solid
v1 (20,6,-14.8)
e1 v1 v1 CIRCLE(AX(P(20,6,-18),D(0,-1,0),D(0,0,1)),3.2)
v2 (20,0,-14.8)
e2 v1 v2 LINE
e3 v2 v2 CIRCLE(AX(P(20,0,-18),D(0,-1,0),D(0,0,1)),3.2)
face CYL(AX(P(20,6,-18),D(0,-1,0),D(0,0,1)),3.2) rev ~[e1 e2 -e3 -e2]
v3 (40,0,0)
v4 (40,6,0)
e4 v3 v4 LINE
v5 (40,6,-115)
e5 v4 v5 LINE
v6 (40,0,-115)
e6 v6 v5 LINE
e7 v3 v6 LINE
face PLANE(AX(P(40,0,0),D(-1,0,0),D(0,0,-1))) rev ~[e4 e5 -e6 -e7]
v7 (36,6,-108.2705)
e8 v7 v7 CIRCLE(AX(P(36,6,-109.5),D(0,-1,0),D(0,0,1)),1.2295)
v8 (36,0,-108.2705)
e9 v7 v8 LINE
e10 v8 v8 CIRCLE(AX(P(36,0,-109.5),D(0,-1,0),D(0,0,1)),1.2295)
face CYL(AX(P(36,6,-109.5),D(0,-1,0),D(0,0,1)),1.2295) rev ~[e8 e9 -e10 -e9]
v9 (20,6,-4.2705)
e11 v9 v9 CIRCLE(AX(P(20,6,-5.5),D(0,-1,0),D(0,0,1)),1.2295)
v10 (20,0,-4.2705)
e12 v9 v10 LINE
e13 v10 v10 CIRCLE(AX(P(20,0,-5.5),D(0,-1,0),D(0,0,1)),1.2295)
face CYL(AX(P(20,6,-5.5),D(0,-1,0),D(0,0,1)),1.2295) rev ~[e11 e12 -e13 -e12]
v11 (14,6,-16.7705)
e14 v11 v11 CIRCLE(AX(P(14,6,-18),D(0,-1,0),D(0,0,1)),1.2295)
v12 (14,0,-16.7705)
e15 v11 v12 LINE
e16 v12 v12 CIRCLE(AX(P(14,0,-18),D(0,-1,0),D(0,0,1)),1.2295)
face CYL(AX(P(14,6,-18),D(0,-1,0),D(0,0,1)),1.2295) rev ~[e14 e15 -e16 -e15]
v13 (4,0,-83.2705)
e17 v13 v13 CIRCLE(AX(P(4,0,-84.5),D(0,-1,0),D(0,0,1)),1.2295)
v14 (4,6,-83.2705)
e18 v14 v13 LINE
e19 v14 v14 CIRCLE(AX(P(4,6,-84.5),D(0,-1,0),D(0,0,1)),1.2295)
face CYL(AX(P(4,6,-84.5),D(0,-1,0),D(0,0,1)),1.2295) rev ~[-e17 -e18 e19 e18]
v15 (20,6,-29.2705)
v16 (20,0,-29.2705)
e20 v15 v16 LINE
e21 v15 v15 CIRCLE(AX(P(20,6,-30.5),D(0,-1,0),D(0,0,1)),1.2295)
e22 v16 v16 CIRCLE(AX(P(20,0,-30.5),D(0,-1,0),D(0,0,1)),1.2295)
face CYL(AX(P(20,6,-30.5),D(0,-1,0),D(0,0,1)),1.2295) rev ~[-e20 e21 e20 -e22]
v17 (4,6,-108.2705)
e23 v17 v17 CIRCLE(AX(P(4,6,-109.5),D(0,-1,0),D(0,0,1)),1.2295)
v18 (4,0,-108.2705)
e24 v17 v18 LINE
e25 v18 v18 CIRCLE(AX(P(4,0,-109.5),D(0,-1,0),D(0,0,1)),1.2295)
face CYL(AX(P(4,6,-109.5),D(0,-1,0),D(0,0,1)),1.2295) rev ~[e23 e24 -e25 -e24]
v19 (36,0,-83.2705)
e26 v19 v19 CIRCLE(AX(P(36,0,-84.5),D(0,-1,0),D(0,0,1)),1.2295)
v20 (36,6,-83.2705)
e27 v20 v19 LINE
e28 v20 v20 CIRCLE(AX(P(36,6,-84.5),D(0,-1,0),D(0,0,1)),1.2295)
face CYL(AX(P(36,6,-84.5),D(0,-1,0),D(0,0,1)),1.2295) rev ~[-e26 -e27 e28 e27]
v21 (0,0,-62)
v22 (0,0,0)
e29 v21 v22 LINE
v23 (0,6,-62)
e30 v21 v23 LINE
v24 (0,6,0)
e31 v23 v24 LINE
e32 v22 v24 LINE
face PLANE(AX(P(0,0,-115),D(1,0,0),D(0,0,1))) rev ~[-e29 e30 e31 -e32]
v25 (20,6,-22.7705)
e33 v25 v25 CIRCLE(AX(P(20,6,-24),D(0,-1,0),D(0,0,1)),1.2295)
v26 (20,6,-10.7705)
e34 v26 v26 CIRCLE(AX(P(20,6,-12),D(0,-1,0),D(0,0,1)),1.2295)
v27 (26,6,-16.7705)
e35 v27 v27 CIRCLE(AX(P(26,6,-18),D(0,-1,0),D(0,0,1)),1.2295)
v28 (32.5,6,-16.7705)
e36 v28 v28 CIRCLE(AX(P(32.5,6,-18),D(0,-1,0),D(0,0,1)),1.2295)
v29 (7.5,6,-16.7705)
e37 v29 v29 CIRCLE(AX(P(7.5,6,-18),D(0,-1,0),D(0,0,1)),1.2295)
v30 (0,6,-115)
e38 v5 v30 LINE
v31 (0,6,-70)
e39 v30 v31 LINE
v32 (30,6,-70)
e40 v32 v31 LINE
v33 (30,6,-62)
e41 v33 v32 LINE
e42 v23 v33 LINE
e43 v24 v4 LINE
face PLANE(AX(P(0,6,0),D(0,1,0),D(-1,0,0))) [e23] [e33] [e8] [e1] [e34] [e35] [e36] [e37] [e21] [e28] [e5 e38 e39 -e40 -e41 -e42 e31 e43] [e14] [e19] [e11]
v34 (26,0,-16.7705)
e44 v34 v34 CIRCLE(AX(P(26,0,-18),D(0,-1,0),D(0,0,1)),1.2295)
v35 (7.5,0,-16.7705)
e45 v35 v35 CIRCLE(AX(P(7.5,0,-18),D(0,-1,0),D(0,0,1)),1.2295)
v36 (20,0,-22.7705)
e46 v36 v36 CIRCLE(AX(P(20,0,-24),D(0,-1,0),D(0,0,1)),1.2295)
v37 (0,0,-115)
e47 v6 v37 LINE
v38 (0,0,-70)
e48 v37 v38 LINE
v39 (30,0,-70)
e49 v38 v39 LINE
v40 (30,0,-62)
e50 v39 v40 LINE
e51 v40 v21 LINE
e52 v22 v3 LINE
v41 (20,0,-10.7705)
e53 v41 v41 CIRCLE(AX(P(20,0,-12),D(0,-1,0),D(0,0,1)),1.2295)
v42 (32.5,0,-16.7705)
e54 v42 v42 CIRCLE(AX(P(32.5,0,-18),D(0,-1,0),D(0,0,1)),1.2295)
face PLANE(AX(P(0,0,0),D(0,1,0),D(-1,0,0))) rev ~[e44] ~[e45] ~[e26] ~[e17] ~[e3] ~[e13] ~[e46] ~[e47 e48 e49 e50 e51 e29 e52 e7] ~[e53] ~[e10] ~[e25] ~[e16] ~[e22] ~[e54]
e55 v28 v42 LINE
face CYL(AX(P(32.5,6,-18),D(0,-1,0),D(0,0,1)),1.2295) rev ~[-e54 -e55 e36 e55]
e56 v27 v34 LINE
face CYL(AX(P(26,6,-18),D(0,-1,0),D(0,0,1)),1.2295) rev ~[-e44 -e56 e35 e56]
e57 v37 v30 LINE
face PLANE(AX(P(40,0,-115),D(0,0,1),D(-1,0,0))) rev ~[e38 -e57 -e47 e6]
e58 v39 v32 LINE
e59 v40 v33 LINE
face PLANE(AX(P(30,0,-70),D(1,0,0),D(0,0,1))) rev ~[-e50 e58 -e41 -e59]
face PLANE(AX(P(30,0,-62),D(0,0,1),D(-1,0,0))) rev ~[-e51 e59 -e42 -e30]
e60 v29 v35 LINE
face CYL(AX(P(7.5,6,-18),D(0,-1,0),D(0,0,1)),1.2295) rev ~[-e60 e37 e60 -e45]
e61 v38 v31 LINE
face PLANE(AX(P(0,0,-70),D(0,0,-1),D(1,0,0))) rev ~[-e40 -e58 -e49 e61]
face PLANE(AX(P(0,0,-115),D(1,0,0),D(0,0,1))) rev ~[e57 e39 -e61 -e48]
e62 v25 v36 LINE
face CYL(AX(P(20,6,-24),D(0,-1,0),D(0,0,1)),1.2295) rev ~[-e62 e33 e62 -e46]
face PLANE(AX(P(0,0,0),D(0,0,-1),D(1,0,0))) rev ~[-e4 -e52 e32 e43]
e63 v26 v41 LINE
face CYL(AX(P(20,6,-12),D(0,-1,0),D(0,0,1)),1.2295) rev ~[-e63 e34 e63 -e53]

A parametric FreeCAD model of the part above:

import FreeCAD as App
import Part
import Sketcher

V = App.Vector
Q = App.Units.Quantity


def add_polygon(sketch, points):
    """Adds a closed chain of lines whose ends are joined by coincident constraints."""
    first, n = sketch.GeometryCount, len(points)
    for a, b in zip(points, points[1:] + points[:1]):
        sketch.addGeometry(Part.LineSegment(App.Vector(*a, 0), App.Vector(*b, 0)), False)
    for i in range(n):
        sketch.addConstraint(Sketcher.Constraint("Coincident", first + i, 2, first + (i + 1) % n, 1))

doc = App.newDocument("Part")
body = doc.addObject("PartDesign::Body", "Body")

# Sketch on XZ plane
sketch1 = body.newObject("Sketcher::SketchObject", "Sketch")
sketch1.AttachmentSupport = (doc.getObject("XZ_Plane"), [""])
sketch1.MapMode = "FlatFace"
add_polygon(sketch1, [(0, -115), (0, 0), (40, 0), (40, -115)])  # lines 0-3
sketch1.addConstraint(Sketcher.Constraint("Vertical", 0))
sketch1.addConstraint(Sketcher.Constraint("Horizontal", 1))
sketch1.addConstraint(Sketcher.Constraint("Vertical", 2))
sketch1.addConstraint(Sketcher.Constraint("Horizontal", 3))
sketch1.addConstraint(Sketcher.Constraint("Coincident", 0, 2, -1, 1))
sketch1.addConstraint(Sketcher.Constraint("DistanceX", 1, 1, 1, 2, Q("40 mm")))
sketch1.addConstraint(Sketcher.Constraint("DistanceY", 0, 1, 0, 2, Q("115 mm")))
pad1 = body.newObject("PartDesign::Pad", "Pad")
pad1.Profile = sketch1
pad1.Length = 6
pad1.Reversed = True

# Sketch on XZ plane
sketch2 = body.newObject("Sketcher::SketchObject", "Sketch001")
sketch2.AttachmentSupport = (doc.getObject("XZ_Plane"), [""])
sketch2.MapMode = "FlatFace"
sketch2.AttachmentOffset = App.Placement(V(0, 0, -6), App.Rotation())
sketch2.addGeometry(Part.Circle(V(20, -18, 0), V(0, 0, 1), 3.2), False)
sketch2.addConstraint(Sketcher.Constraint("Diameter", 0, Q("6.4 mm")))
sketch2.addConstraint(Sketcher.Constraint("DistanceX", -1, 1, 0, 3, Q("20 mm")))
sketch2.addConstraint(Sketcher.Constraint("DistanceY", 0, 3, -1, 1, Q("18 mm")))
doc.recompute()
hole = body.newObject("PartDesign::Hole", "Hole")
hole.Profile = sketch2
hole.ThreadType = "None"
hole.Diameter = 6.4
hole.DepthType = "ThroughAll"
hole.Reversed = True

# Sketch on XZ plane
sketch3 = body.newObject("Sketcher::SketchObject", "Sketch002")
sketch3.AttachmentSupport = (doc.getObject("XZ_Plane"), [""])
sketch3.MapMode = "FlatFace"
sketch3.AttachmentOffset = App.Placement(V(0, 0, -6), App.Rotation())
sketch3.addGeometry(Part.Circle(V(7.5, -18, 0), V(0, 0, 1), 1.2), False)
sketch3.addGeometry(Part.Circle(V(20, -5.5, 0), V(0, 0, 1), 1.2), False)
sketch3.addGeometry(Part.Circle(V(32.5, -18, 0), V(0, 0, 1), 1.2), False)
sketch3.addGeometry(Part.Circle(V(20, -30.5, 0), V(0, 0, 1), 1.2), False)
sketch3.addConstraint(Sketcher.Constraint("Equal", 0, 1))
sketch3.addConstraint(Sketcher.Constraint("Equal", 1, 2))
sketch3.addConstraint(Sketcher.Constraint("Equal", 2, 3))
sketch3.addConstraint(Sketcher.Constraint("Horizontal", 0, 3, 2, 3))
sketch3.addConstraint(Sketcher.Constraint("Vertical", 1, 3, 3, 3))
sketch3.addConstraint(Sketcher.Constraint("Diameter", 0, Q("2.459 mm")))
sketch3.addConstraint(Sketcher.Constraint("DistanceY", 0, 3, -1, 1, Q("18 mm")))
sketch3.addConstraint(Sketcher.Constraint("DistanceX", -1, 1, 1, 3, Q("20 mm")))
sketch3.addConstraint(Sketcher.Constraint("DistanceX", 0, 3, 2, 3, Q("25 mm")))
sketch3.addConstraint(Sketcher.Constraint("DistanceY", 3, 3, 1, 3, Q("25 mm")))
sketch3.addConstraint(Sketcher.Constraint("DistanceX", -1, 1, 0, 3, Q("7.5 mm")))
sketch3.addConstraint(Sketcher.Constraint("DistanceY", 1, 3, -1, 1, Q("5.5 mm")))
doc.recompute()
hole2 = body.newObject("PartDesign::Hole", "Hole001")
hole2.Profile = sketch3
hole2.ThreadType = "None"
hole2.Diameter = 2.459
hole2.DepthType = "ThroughAll"
hole2.Reversed = True

# Sketch on XZ plane
sketch4 = body.newObject("Sketcher::SketchObject", "Sketch003")
sketch4.AttachmentSupport = (doc.getObject("XZ_Plane"), [""])
sketch4.MapMode = "FlatFace"
add_polygon(sketch4, [(30, -70), (30, -62), (0, -62), (0, -70)])  # lines 0-3
sketch4.addConstraint(Sketcher.Constraint("Vertical", 0))
sketch4.addConstraint(Sketcher.Constraint("Horizontal", 1))
sketch4.addConstraint(Sketcher.Constraint("Vertical", 2))
sketch4.addConstraint(Sketcher.Constraint("Horizontal", 3))
sketch4.addConstraint(Sketcher.Constraint("PointOnObject", 1, 2, -2))
sketch4.addConstraint(Sketcher.Constraint("DistanceX", 1, 2, 1, 1, Q("30 mm")))
sketch4.addConstraint(Sketcher.Constraint("DistanceY", 0, 1, 0, 2, Q("8 mm")))
sketch4.addConstraint(Sketcher.Constraint("DistanceY", 0, 2, -1, 1, Q("62 mm")))
pocket1 = body.newObject("PartDesign::Pocket", "Pocket")
pocket1.Profile = sketch4
pocket1.Length = 10

# Sketch on XZ plane
sketch5 = body.newObject("Sketcher::SketchObject", "Sketch004")
sketch5.AttachmentSupport = (doc.getObject("XZ_Plane"), [""])
sketch5.MapMode = "FlatFace"
sketch5.AttachmentOffset = App.Placement(V(0, 0, -6), App.Rotation())
sketch5.addGeometry(Part.Circle(V(36, -84.5, 0), V(0, 0, 1), 1.2), False)
sketch5.addGeometry(Part.Circle(V(36, -109.5, 0), V(0, 0, 1), 1.2), False)
sketch5.addGeometry(Part.Circle(V(4, -109.5, 0), V(0, 0, 1), 1.2), False)
sketch5.addGeometry(Part.Circle(V(4, -84.5, 0), V(0, 0, 1), 1.2), False)
sketch5.addConstraint(Sketcher.Constraint("Equal", 0, 1))
sketch5.addConstraint(Sketcher.Constraint("Equal", 1, 2))
sketch5.addConstraint(Sketcher.Constraint("Equal", 2, 3))
sketch5.addConstraint(Sketcher.Constraint("Horizontal", 1, 3, 2, 3))
sketch5.addConstraint(Sketcher.Constraint("Horizontal", 0, 3, 3, 3))
sketch5.addConstraint(Sketcher.Constraint("Vertical", 0, 3, 1, 3))
sketch5.addConstraint(Sketcher.Constraint("Vertical", 2, 3, 3, 3))
sketch5.addConstraint(Sketcher.Constraint("Diameter", 0, Q("2.459 mm")))
sketch5.addConstraint(Sketcher.Constraint("DistanceX", -1, 1, 0, 3, Q("36 mm")))
sketch5.addConstraint(Sketcher.Constraint("DistanceX", -1, 1, 2, 3, Q("4 mm")))
sketch5.addConstraint(Sketcher.Constraint("DistanceY", 1, 3, 0, 3, Q("25 mm")))
sketch5.addConstraint(Sketcher.Constraint("DistanceY", 0, 3, -1, 1, Q("84.5 mm")))
doc.recompute()
hole3 = body.newObject("PartDesign::Hole", "Hole002")
hole3.Profile = sketch5
hole3.ThreadType = "None"
hole3.Diameter = 2.459
hole3.DepthType = "ThroughAll"
hole3.Reversed = True

# Sketch on XZ plane
sketch6 = body.newObject("Sketcher::SketchObject", "Sketch005")
sketch6.AttachmentSupport = (doc.getObject("XZ_Plane"), [""])
sketch6.MapMode = "FlatFace"
sketch6.AttachmentOffset = App.Placement(V(0, 0, -6), App.Rotation())
sketch6.addGeometry(Part.Circle(V(20, -12, 0), V(0, 0, 1), 1.2), False)
sketch6.addGeometry(Part.Circle(V(14, -18, 0), V(0, 0, 1), 1.2), False)
sketch6.addGeometry(Part.Circle(V(20, -24, 0), V(0, 0, 1), 1.2), False)
sketch6.addGeometry(Part.Circle(V(26, -18, 0), V(0, 0, 1), 1.2), False)
sketch6.addConstraint(Sketcher.Constraint("Equal", 0, 1))
sketch6.addConstraint(Sketcher.Constraint("Equal", 1, 2))
sketch6.addConstraint(Sketcher.Constraint("Equal", 2, 3))
sketch6.addConstraint(Sketcher.Constraint("Horizontal", 1, 3, 3, 3))
sketch6.addConstraint(Sketcher.Constraint("Vertical", 0, 3, 2, 3))
sketch6.addConstraint(Sketcher.Constraint("Diameter", 0, Q("2.459 mm")))
sketch6.addConstraint(Sketcher.Constraint("DistanceX", -1, 1, 0, 3, Q("20 mm")))
sketch6.addConstraint(Sketcher.Constraint("DistanceY", 0, 3, -1, 1, Q("12 mm")))
sketch6.addConstraint(Sketcher.Constraint("DistanceX", -1, 1, 1, 3, Q("14 mm")))
sketch6.addConstraint(Sketcher.Constraint("DistanceY", 1, 3, -1, 1, Q("18 mm")))
sketch6.addConstraint(Sketcher.Constraint("DistanceY", 2, 3, -1, 1, Q("24 mm")))
sketch6.addConstraint(Sketcher.Constraint("DistanceX", -1, 1, 3, 3, Q("26 mm")))
doc.recompute()
hole4 = body.newObject("PartDesign::Hole", "Hole003")
hole4.Profile = sketch6
hole4.ThreadType = "None"
hole4.Diameter = 2.459
hole4.DepthType = "ThroughAll"
hole4.Reversed = True

doc.recompute()
